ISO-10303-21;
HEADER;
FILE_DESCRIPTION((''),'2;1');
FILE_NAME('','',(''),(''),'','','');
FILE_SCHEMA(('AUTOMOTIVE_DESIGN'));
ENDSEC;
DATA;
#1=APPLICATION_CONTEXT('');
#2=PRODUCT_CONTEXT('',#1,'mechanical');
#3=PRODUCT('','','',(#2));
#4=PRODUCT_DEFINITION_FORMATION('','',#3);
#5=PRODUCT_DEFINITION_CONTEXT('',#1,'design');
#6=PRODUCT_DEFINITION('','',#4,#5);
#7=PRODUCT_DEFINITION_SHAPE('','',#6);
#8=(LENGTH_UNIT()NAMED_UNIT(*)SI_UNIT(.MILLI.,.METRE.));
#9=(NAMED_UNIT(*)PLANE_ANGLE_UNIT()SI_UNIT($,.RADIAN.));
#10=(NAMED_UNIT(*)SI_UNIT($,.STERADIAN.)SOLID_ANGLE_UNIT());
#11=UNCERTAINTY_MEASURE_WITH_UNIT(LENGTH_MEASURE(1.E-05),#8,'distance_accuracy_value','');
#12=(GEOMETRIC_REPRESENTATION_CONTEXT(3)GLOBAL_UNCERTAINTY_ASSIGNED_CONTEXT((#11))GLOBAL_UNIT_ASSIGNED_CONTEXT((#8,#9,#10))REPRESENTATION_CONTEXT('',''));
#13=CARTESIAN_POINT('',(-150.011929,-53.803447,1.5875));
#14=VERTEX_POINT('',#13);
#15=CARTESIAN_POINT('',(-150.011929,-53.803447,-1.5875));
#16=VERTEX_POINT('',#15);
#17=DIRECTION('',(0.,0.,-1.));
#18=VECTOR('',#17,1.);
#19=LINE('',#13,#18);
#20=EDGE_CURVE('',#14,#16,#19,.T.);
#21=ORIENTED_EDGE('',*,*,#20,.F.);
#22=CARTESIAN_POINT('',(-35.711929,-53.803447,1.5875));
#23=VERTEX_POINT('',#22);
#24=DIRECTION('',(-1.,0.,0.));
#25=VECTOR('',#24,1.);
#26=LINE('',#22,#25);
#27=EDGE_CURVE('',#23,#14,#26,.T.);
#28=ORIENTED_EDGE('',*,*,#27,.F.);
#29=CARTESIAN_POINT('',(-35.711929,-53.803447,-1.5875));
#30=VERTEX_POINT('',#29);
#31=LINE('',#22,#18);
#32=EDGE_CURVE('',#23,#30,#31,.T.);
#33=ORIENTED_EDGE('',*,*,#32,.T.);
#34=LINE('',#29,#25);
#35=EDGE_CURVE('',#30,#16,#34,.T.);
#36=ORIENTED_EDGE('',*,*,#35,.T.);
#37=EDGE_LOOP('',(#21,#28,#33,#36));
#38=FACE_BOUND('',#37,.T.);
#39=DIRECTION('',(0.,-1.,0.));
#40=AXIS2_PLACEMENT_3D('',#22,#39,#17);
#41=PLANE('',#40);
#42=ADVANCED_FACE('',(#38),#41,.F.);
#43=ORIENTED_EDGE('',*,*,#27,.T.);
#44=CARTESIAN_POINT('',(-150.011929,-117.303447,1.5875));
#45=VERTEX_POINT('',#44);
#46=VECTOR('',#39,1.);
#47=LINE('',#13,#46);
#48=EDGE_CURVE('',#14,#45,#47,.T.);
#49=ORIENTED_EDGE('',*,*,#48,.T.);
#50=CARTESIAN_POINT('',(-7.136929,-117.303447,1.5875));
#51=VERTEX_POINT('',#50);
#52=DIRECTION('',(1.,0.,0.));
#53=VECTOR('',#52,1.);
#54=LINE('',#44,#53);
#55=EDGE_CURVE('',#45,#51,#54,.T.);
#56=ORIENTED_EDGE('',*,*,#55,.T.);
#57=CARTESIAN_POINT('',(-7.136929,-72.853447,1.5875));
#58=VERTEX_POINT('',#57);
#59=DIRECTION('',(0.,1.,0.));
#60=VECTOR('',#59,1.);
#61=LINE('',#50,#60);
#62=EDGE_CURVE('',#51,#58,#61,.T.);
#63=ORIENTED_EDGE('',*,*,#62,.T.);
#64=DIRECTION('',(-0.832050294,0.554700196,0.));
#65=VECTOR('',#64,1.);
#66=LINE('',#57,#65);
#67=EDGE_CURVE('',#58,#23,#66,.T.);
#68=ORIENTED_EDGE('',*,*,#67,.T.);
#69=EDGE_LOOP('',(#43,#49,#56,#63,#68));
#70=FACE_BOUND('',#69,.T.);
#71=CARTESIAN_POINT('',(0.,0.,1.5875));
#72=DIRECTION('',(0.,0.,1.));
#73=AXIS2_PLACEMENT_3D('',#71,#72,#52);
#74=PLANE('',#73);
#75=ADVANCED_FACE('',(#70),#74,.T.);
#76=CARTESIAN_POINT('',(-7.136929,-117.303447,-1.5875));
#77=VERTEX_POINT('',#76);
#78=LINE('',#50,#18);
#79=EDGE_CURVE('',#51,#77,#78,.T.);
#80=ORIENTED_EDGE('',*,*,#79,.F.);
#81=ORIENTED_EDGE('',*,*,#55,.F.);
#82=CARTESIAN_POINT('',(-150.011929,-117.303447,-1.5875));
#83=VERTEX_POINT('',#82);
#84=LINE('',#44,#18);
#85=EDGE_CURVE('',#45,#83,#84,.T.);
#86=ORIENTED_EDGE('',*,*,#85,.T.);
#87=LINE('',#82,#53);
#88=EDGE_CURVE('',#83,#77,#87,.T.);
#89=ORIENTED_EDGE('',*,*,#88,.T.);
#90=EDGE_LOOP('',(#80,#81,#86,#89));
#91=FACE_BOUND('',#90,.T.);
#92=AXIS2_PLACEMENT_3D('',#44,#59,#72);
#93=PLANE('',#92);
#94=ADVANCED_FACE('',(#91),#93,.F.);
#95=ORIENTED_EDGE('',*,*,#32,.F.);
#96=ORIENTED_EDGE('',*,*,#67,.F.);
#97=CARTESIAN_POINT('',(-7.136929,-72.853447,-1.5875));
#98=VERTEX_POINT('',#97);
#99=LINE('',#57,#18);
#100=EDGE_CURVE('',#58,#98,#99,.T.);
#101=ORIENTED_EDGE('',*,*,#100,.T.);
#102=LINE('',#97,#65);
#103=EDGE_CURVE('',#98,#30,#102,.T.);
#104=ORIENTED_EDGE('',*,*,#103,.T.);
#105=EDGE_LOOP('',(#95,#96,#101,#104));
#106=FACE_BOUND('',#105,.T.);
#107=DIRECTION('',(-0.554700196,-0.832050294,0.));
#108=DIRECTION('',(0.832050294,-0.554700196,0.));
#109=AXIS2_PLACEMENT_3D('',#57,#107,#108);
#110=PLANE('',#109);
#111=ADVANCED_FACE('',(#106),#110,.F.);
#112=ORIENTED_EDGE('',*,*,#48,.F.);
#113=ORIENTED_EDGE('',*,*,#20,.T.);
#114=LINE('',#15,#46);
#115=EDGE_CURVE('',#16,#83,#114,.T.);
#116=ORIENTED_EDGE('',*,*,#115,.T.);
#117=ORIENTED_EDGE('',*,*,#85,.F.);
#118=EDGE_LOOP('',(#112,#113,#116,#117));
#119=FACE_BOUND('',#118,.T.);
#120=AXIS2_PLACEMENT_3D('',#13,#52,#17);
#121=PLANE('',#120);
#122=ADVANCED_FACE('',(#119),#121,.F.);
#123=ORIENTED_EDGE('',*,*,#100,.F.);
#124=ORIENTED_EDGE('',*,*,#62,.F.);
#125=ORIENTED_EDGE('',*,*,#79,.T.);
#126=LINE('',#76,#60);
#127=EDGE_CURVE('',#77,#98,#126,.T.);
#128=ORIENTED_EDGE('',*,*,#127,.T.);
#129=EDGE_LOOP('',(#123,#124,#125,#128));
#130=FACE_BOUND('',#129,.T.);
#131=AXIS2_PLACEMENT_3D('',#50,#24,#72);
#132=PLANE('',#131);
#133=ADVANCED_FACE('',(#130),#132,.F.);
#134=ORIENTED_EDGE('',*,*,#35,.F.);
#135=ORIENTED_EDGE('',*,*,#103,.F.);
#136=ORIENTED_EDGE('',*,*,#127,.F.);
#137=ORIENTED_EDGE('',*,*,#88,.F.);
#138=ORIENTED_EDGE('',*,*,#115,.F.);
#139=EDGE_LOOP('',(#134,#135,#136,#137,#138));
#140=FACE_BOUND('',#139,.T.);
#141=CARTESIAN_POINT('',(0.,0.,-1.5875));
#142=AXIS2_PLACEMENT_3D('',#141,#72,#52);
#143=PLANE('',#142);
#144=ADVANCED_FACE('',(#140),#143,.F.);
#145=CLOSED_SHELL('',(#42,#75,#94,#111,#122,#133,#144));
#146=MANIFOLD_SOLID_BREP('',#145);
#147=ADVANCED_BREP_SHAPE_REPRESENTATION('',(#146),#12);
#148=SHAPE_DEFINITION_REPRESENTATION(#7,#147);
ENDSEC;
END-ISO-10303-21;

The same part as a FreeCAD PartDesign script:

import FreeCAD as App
import Part
import Sketcher
from FreeCAD import Vector
Q = App.Units.Quantity

doc = App.newDocument("Part")
body = doc.addObject("PartDesign::Body", "Body")

# Sketch on XY plane
sketch1 = body.newObject("Sketcher::SketchObject", "Sketch")
sketch1.AttachmentSupport = (doc.getObject("XY_Plane"), [""])
sketch1.MapMode = "FlatFace"
sketch1.addGeometry([
    Part.LineSegment(Vector(-150.011929, -117.303447, 0), Vector(-7.136929, -117.303447, 0)),  # 0
    Part.LineSegment(Vector(-7.136929, -117.303447, 0), Vector(-7.136929, -72.853447, 0)),  # 1
    Part.LineSegment(Vector(-7.136929, -72.853447, 0), Vector(-35.711929, -53.803447, 0)),  # 2
    Part.LineSegment(Vector(-35.711929, -53.803447, 0), Vector(-150.011929, -53.803447, 0)),  # 3
    Part.LineSegment(Vector(-150.011929, -53.803447, 0), Vector(-150.011929, -117.303447, 0)),  # 4
], False)
sketch1.addConstraint([
    Sketcher.Constraint("Coincident", 0, 2, 1, 1),
    Sketcher.Constraint("Coincident", 1, 2, 2, 1),
    Sketcher.Constraint("Coincident", 2, 2, 3, 1),
    Sketcher.Constraint("Coincident", 3, 2, 4, 1),
    Sketcher.Constraint("Coincident", 4, 2, 0, 1),
    Sketcher.Constraint("Horizontal", 0),
    Sketcher.Constraint("Vertical", 1),
    Sketcher.Constraint("Horizontal", 3),
    Sketcher.Constraint("Vertical", 4),
    Sketcher.Constraint("DistanceX", 3, 2, 3, 1, Q("4.5 in")),
    Sketcher.Constraint("DistanceY", 4, 2, 4, 1, Q("2.5 in")),
    Sketcher.Constraint("DistanceY", 1, 1, 1, 2, Q("1.75 in")),
    Sketcher.Constraint("DistanceX", 0, 1, 0, 2, Q("5.625 in")),
    Sketcher.Constraint("DistanceX", 0, 2, -1, 1, 7.136929),
    Sketcher.Constraint("DistanceY", 0, 2, -1, 1, 117.303447),
])
pad1 = body.newObject("PartDesign::Pad", "Pad")
pad1.Profile = sketch1
pad1.Length = Q("0.125 in")
pad1.Midplane = True

doc.recompute()
